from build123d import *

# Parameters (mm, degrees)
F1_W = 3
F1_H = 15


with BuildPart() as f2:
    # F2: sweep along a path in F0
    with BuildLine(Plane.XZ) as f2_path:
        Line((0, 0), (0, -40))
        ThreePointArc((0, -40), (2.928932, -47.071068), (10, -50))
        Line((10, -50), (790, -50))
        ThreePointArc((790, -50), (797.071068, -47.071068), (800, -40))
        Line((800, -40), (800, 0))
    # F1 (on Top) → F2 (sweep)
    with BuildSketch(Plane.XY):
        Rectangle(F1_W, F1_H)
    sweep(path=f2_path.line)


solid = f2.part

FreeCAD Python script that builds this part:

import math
import FreeCAD as App
import Part
import Sketcher

doc = App.newDocument("Part")
body = doc.addObject("PartDesign::Body", "Body")

sketch1 = body.newObject("Sketcher::SketchObject", "Sketch")
sketch1.AttachmentSupport = (doc.getObject("XY_Plane"), [""])
sketch1.MapMode = "FlatFace"
sketch1.addGeometry(Part.LineSegment(App.Vector(-1.5, 7.5, 0), App.Vector(-1.5, -7.5, 0)), False)
sketch1.addGeometry(Part.LineSegment(App.Vector(-1.5, -7.5, 0), App.Vector(1.5, -7.5, 0)), False)
sketch1.addGeometry(Part.LineSegment(App.Vector(1.5, -7.5, 0), App.Vector(1.5, 7.5, 0)), False)
sketch1.addGeometry(Part.LineSegment(App.Vector(1.5, 7.5, 0), App.Vector(-1.5, 7.5, 0)), False)
sketch1.addConstraint(Sketcher.Constraint("Coincident", 0, 2, 1, 1))
sketch1.addConstraint(Sketcher.Constraint("Coincident", 1, 2, 2, 1))
sketch1.addConstraint(Sketcher.Constraint("Coincident", 2, 2, 3, 1))
sketch1.addConstraint(Sketcher.Constraint("Coincident", 3, 2, 0, 1))
sketch1.addConstraint(Sketcher.Constraint("Vertical", 0))
sketch1.addConstraint(Sketcher.Constraint("Horizontal", 1))
sketch1.addConstraint(Sketcher.Constraint("Vertical", 2))
sketch1.addConstraint(Sketcher.Constraint("Horizontal", 3))
sketch1.addConstraint(Sketcher.Constraint("Symmetric", 0, 2, 2, 2, -1, 1))
sketch1.addConstraint(Sketcher.Constraint("DistanceX", 1, 1, 1, 2, 3.0))
sketch1.addConstraint(Sketcher.Constraint("DistanceY", 0, 2, 0, 1, 15.0))

sketch2 = body.newObject("Sketcher::SketchObject", "Sketch001")
sketch2.AttachmentSupport = (doc.getObject("XZ_Plane"), [""])
sketch2.MapMode = "FlatFace"
sketch2.addGeometry(Part.LineSegment(App.Vector(0, 0, 0), App.Vector(0, -40, 0)), False)
sketch2.addGeometry(Part.ArcOfCircle(Part.Circle(App.Vector(10, -40, 0), App.Vector(0, 0, 1), 10), math.radians(180), math.radians(270)), False)
sketch2.addGeometry(Part.LineSegment(App.Vector(10, -50, 0), App.Vector(790, -50, 0)), False)
sketch2.addGeometry(Part.ArcOfCircle(Part.Circle(App.Vector(790, -40, 0), App.Vector(0, 0, 1), 10), math.radians(-90), math.radians(0)), False)
sketch2.addGeometry(Part.LineSegment(App.Vector(800, -40, 0), App.Vector(800, 0, 0)), False)
sketch2.addConstraint(Sketcher.Constraint("Tangent", 0, 2, 1, 1))
sketch2.addConstraint(Sketcher.Constraint("Tangent", 1, 2, 2, 1))
sketch2.addConstraint(Sketcher.Constraint("Tangent", 2, 2, 3, 1))
sketch2.addConstraint(Sketcher.Constraint("Tangent", 3, 2, 4, 1))
sketch2.addConstraint(Sketcher.Constraint("Vertical", 0))
sketch2.addConstraint(Sketcher.Constraint("Horizontal", 2))
sketch2.addConstraint(Sketcher.Constraint("Vertical", 4))
sketch2.addConstraint(Sketcher.Constraint("Coincident", 0, 1, -1, 1))
sketch2.addConstraint(Sketcher.Constraint("Equal", 1, 3))
sketch2.addConstraint(Sketcher.Constraint("PointOnObject", 4, 2, -1))
sketch2.addConstraint(Sketcher.Constraint("Radius", 1, 9.999999))
sketch2.addConstraint(Sketcher.Constraint("DistanceX", 2, 1, 2, 2, 780.0))
sketch2.addConstraint(Sketcher.Constraint("DistanceY", 0, 2, 0, 1, 40.0))
doc.recompute()

additivepipe = body.newObject("PartDesign::AdditivePipe", "AdditivePipe")
additivepipe.Profile = sketch1
additivepipe.Spine = (sketch2, ["Edge1", "Edge2", "Edge3", "Edge4", "Edge5"])

doc.recompute()
